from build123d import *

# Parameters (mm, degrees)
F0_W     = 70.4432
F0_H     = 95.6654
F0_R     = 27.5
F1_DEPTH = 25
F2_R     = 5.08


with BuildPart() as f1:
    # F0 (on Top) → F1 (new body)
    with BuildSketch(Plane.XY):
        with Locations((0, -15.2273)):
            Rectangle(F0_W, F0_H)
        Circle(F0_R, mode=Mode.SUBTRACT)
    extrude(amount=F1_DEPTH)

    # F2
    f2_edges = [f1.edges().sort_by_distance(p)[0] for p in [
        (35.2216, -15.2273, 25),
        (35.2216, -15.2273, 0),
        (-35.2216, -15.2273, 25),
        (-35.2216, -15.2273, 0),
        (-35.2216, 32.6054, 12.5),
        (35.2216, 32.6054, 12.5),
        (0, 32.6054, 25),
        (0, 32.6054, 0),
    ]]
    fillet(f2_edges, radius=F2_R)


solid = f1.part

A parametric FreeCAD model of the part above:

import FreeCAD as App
import Part
import Sketcher

V = App.Vector
Q = App.Units.Quantity


def edges_at(feature, points):
    """Names of the edges that pass closest to the given points."""
    edges = feature.Shape.Edges
    near = lambda p: min(range(len(edges)), key=lambda i: edges[i].distToShape(Part.Vertex(*p))[0])
    return sorted({f"Edge{near(p) + 1}" for p in points})

doc = App.newDocument("Part")
body = doc.addObject("PartDesign::Body", "Body")

# Sketch on XY plane
sketch1 = doc.addObject("Sketcher::SketchObject", "Sketch")
body.addObject(sketch1)
sketch1.AttachmentSupport = (doc.XY_Plane, [""])
sketch1.MapMode = "FlatFace"
sketch1.addGeometry([
    Part.LineSegment(V(-35, 33, 0), V(-35, -63, 0)),  # 0
    Part.LineSegment(V(-35, -63, 0), V(35, -63, 0)),  # 1
    Part.LineSegment(V(35, -63, 0), V(35, 33, 0)),  # 2
    Part.LineSegment(V(35, 33, 0), V(-35, 33, 0)),  # 3
    Part.Circle(V(0, 0, 0), V(0, 0, 1), 28),  # 4
], False)
sketch1.addConstraint([
    Sketcher.Constraint("Coincident", 0, 2, 1, 1),
    Sketcher.Constraint("Coincident", 1, 2, 2, 1),
    Sketcher.Constraint("Coincident", 2, 2, 3, 1),
    Sketcher.Constraint("Coincident", 3, 2, 0, 1),
    Sketcher.Constraint("Vertical", 0),
    Sketcher.Constraint("Horizontal", 1),
    Sketcher.Constraint("Vertical", 2),
    Sketcher.Constraint("Horizontal", 3),
    Sketcher.Constraint("Coincident", 4, 3, -1, 1),
    Sketcher.Constraint("Diameter", 4, Q("55 mm")),
    Sketcher.Constraint("DistanceY", 0, 2, -1, 1, Q("63.06 mm")),
    Sketcher.Constraint("DistanceX", 1, 1, 1, 2, Q("70.4432 mm")),
    Sketcher.Constraint("DistanceY", 0, 2, 0, 1, Q("95.6654 mm")),
    Sketcher.Constraint("DistanceX", 0, 2, -1, 1, Q("35.2216 mm")),
])
pad1 = doc.addObject("PartDesign::Pad", "Pad")
body.addObject(pad1)
pad1.Profile = sketch1
pad1.Length = 25
doc.recompute()

fillet = doc.addObject("PartDesign::Fillet", "Fillet")
body.addObject(fillet)
fillet.Base = (pad1, edges_at(pad1, [
    (35.222, -15.227, 25),
    (35.222, -15.227, 0),
    (-35.222, -15.227, 25),
    (-35.222, -15.227, 0),
    (-35.222, 32.605, 12.5),
    (35.222, 32.605, 12.5),
    (0, 32.605, 25),
    (0, 32.605, 0),
]))
fillet.Radius = 5.08

doc.recompute()
